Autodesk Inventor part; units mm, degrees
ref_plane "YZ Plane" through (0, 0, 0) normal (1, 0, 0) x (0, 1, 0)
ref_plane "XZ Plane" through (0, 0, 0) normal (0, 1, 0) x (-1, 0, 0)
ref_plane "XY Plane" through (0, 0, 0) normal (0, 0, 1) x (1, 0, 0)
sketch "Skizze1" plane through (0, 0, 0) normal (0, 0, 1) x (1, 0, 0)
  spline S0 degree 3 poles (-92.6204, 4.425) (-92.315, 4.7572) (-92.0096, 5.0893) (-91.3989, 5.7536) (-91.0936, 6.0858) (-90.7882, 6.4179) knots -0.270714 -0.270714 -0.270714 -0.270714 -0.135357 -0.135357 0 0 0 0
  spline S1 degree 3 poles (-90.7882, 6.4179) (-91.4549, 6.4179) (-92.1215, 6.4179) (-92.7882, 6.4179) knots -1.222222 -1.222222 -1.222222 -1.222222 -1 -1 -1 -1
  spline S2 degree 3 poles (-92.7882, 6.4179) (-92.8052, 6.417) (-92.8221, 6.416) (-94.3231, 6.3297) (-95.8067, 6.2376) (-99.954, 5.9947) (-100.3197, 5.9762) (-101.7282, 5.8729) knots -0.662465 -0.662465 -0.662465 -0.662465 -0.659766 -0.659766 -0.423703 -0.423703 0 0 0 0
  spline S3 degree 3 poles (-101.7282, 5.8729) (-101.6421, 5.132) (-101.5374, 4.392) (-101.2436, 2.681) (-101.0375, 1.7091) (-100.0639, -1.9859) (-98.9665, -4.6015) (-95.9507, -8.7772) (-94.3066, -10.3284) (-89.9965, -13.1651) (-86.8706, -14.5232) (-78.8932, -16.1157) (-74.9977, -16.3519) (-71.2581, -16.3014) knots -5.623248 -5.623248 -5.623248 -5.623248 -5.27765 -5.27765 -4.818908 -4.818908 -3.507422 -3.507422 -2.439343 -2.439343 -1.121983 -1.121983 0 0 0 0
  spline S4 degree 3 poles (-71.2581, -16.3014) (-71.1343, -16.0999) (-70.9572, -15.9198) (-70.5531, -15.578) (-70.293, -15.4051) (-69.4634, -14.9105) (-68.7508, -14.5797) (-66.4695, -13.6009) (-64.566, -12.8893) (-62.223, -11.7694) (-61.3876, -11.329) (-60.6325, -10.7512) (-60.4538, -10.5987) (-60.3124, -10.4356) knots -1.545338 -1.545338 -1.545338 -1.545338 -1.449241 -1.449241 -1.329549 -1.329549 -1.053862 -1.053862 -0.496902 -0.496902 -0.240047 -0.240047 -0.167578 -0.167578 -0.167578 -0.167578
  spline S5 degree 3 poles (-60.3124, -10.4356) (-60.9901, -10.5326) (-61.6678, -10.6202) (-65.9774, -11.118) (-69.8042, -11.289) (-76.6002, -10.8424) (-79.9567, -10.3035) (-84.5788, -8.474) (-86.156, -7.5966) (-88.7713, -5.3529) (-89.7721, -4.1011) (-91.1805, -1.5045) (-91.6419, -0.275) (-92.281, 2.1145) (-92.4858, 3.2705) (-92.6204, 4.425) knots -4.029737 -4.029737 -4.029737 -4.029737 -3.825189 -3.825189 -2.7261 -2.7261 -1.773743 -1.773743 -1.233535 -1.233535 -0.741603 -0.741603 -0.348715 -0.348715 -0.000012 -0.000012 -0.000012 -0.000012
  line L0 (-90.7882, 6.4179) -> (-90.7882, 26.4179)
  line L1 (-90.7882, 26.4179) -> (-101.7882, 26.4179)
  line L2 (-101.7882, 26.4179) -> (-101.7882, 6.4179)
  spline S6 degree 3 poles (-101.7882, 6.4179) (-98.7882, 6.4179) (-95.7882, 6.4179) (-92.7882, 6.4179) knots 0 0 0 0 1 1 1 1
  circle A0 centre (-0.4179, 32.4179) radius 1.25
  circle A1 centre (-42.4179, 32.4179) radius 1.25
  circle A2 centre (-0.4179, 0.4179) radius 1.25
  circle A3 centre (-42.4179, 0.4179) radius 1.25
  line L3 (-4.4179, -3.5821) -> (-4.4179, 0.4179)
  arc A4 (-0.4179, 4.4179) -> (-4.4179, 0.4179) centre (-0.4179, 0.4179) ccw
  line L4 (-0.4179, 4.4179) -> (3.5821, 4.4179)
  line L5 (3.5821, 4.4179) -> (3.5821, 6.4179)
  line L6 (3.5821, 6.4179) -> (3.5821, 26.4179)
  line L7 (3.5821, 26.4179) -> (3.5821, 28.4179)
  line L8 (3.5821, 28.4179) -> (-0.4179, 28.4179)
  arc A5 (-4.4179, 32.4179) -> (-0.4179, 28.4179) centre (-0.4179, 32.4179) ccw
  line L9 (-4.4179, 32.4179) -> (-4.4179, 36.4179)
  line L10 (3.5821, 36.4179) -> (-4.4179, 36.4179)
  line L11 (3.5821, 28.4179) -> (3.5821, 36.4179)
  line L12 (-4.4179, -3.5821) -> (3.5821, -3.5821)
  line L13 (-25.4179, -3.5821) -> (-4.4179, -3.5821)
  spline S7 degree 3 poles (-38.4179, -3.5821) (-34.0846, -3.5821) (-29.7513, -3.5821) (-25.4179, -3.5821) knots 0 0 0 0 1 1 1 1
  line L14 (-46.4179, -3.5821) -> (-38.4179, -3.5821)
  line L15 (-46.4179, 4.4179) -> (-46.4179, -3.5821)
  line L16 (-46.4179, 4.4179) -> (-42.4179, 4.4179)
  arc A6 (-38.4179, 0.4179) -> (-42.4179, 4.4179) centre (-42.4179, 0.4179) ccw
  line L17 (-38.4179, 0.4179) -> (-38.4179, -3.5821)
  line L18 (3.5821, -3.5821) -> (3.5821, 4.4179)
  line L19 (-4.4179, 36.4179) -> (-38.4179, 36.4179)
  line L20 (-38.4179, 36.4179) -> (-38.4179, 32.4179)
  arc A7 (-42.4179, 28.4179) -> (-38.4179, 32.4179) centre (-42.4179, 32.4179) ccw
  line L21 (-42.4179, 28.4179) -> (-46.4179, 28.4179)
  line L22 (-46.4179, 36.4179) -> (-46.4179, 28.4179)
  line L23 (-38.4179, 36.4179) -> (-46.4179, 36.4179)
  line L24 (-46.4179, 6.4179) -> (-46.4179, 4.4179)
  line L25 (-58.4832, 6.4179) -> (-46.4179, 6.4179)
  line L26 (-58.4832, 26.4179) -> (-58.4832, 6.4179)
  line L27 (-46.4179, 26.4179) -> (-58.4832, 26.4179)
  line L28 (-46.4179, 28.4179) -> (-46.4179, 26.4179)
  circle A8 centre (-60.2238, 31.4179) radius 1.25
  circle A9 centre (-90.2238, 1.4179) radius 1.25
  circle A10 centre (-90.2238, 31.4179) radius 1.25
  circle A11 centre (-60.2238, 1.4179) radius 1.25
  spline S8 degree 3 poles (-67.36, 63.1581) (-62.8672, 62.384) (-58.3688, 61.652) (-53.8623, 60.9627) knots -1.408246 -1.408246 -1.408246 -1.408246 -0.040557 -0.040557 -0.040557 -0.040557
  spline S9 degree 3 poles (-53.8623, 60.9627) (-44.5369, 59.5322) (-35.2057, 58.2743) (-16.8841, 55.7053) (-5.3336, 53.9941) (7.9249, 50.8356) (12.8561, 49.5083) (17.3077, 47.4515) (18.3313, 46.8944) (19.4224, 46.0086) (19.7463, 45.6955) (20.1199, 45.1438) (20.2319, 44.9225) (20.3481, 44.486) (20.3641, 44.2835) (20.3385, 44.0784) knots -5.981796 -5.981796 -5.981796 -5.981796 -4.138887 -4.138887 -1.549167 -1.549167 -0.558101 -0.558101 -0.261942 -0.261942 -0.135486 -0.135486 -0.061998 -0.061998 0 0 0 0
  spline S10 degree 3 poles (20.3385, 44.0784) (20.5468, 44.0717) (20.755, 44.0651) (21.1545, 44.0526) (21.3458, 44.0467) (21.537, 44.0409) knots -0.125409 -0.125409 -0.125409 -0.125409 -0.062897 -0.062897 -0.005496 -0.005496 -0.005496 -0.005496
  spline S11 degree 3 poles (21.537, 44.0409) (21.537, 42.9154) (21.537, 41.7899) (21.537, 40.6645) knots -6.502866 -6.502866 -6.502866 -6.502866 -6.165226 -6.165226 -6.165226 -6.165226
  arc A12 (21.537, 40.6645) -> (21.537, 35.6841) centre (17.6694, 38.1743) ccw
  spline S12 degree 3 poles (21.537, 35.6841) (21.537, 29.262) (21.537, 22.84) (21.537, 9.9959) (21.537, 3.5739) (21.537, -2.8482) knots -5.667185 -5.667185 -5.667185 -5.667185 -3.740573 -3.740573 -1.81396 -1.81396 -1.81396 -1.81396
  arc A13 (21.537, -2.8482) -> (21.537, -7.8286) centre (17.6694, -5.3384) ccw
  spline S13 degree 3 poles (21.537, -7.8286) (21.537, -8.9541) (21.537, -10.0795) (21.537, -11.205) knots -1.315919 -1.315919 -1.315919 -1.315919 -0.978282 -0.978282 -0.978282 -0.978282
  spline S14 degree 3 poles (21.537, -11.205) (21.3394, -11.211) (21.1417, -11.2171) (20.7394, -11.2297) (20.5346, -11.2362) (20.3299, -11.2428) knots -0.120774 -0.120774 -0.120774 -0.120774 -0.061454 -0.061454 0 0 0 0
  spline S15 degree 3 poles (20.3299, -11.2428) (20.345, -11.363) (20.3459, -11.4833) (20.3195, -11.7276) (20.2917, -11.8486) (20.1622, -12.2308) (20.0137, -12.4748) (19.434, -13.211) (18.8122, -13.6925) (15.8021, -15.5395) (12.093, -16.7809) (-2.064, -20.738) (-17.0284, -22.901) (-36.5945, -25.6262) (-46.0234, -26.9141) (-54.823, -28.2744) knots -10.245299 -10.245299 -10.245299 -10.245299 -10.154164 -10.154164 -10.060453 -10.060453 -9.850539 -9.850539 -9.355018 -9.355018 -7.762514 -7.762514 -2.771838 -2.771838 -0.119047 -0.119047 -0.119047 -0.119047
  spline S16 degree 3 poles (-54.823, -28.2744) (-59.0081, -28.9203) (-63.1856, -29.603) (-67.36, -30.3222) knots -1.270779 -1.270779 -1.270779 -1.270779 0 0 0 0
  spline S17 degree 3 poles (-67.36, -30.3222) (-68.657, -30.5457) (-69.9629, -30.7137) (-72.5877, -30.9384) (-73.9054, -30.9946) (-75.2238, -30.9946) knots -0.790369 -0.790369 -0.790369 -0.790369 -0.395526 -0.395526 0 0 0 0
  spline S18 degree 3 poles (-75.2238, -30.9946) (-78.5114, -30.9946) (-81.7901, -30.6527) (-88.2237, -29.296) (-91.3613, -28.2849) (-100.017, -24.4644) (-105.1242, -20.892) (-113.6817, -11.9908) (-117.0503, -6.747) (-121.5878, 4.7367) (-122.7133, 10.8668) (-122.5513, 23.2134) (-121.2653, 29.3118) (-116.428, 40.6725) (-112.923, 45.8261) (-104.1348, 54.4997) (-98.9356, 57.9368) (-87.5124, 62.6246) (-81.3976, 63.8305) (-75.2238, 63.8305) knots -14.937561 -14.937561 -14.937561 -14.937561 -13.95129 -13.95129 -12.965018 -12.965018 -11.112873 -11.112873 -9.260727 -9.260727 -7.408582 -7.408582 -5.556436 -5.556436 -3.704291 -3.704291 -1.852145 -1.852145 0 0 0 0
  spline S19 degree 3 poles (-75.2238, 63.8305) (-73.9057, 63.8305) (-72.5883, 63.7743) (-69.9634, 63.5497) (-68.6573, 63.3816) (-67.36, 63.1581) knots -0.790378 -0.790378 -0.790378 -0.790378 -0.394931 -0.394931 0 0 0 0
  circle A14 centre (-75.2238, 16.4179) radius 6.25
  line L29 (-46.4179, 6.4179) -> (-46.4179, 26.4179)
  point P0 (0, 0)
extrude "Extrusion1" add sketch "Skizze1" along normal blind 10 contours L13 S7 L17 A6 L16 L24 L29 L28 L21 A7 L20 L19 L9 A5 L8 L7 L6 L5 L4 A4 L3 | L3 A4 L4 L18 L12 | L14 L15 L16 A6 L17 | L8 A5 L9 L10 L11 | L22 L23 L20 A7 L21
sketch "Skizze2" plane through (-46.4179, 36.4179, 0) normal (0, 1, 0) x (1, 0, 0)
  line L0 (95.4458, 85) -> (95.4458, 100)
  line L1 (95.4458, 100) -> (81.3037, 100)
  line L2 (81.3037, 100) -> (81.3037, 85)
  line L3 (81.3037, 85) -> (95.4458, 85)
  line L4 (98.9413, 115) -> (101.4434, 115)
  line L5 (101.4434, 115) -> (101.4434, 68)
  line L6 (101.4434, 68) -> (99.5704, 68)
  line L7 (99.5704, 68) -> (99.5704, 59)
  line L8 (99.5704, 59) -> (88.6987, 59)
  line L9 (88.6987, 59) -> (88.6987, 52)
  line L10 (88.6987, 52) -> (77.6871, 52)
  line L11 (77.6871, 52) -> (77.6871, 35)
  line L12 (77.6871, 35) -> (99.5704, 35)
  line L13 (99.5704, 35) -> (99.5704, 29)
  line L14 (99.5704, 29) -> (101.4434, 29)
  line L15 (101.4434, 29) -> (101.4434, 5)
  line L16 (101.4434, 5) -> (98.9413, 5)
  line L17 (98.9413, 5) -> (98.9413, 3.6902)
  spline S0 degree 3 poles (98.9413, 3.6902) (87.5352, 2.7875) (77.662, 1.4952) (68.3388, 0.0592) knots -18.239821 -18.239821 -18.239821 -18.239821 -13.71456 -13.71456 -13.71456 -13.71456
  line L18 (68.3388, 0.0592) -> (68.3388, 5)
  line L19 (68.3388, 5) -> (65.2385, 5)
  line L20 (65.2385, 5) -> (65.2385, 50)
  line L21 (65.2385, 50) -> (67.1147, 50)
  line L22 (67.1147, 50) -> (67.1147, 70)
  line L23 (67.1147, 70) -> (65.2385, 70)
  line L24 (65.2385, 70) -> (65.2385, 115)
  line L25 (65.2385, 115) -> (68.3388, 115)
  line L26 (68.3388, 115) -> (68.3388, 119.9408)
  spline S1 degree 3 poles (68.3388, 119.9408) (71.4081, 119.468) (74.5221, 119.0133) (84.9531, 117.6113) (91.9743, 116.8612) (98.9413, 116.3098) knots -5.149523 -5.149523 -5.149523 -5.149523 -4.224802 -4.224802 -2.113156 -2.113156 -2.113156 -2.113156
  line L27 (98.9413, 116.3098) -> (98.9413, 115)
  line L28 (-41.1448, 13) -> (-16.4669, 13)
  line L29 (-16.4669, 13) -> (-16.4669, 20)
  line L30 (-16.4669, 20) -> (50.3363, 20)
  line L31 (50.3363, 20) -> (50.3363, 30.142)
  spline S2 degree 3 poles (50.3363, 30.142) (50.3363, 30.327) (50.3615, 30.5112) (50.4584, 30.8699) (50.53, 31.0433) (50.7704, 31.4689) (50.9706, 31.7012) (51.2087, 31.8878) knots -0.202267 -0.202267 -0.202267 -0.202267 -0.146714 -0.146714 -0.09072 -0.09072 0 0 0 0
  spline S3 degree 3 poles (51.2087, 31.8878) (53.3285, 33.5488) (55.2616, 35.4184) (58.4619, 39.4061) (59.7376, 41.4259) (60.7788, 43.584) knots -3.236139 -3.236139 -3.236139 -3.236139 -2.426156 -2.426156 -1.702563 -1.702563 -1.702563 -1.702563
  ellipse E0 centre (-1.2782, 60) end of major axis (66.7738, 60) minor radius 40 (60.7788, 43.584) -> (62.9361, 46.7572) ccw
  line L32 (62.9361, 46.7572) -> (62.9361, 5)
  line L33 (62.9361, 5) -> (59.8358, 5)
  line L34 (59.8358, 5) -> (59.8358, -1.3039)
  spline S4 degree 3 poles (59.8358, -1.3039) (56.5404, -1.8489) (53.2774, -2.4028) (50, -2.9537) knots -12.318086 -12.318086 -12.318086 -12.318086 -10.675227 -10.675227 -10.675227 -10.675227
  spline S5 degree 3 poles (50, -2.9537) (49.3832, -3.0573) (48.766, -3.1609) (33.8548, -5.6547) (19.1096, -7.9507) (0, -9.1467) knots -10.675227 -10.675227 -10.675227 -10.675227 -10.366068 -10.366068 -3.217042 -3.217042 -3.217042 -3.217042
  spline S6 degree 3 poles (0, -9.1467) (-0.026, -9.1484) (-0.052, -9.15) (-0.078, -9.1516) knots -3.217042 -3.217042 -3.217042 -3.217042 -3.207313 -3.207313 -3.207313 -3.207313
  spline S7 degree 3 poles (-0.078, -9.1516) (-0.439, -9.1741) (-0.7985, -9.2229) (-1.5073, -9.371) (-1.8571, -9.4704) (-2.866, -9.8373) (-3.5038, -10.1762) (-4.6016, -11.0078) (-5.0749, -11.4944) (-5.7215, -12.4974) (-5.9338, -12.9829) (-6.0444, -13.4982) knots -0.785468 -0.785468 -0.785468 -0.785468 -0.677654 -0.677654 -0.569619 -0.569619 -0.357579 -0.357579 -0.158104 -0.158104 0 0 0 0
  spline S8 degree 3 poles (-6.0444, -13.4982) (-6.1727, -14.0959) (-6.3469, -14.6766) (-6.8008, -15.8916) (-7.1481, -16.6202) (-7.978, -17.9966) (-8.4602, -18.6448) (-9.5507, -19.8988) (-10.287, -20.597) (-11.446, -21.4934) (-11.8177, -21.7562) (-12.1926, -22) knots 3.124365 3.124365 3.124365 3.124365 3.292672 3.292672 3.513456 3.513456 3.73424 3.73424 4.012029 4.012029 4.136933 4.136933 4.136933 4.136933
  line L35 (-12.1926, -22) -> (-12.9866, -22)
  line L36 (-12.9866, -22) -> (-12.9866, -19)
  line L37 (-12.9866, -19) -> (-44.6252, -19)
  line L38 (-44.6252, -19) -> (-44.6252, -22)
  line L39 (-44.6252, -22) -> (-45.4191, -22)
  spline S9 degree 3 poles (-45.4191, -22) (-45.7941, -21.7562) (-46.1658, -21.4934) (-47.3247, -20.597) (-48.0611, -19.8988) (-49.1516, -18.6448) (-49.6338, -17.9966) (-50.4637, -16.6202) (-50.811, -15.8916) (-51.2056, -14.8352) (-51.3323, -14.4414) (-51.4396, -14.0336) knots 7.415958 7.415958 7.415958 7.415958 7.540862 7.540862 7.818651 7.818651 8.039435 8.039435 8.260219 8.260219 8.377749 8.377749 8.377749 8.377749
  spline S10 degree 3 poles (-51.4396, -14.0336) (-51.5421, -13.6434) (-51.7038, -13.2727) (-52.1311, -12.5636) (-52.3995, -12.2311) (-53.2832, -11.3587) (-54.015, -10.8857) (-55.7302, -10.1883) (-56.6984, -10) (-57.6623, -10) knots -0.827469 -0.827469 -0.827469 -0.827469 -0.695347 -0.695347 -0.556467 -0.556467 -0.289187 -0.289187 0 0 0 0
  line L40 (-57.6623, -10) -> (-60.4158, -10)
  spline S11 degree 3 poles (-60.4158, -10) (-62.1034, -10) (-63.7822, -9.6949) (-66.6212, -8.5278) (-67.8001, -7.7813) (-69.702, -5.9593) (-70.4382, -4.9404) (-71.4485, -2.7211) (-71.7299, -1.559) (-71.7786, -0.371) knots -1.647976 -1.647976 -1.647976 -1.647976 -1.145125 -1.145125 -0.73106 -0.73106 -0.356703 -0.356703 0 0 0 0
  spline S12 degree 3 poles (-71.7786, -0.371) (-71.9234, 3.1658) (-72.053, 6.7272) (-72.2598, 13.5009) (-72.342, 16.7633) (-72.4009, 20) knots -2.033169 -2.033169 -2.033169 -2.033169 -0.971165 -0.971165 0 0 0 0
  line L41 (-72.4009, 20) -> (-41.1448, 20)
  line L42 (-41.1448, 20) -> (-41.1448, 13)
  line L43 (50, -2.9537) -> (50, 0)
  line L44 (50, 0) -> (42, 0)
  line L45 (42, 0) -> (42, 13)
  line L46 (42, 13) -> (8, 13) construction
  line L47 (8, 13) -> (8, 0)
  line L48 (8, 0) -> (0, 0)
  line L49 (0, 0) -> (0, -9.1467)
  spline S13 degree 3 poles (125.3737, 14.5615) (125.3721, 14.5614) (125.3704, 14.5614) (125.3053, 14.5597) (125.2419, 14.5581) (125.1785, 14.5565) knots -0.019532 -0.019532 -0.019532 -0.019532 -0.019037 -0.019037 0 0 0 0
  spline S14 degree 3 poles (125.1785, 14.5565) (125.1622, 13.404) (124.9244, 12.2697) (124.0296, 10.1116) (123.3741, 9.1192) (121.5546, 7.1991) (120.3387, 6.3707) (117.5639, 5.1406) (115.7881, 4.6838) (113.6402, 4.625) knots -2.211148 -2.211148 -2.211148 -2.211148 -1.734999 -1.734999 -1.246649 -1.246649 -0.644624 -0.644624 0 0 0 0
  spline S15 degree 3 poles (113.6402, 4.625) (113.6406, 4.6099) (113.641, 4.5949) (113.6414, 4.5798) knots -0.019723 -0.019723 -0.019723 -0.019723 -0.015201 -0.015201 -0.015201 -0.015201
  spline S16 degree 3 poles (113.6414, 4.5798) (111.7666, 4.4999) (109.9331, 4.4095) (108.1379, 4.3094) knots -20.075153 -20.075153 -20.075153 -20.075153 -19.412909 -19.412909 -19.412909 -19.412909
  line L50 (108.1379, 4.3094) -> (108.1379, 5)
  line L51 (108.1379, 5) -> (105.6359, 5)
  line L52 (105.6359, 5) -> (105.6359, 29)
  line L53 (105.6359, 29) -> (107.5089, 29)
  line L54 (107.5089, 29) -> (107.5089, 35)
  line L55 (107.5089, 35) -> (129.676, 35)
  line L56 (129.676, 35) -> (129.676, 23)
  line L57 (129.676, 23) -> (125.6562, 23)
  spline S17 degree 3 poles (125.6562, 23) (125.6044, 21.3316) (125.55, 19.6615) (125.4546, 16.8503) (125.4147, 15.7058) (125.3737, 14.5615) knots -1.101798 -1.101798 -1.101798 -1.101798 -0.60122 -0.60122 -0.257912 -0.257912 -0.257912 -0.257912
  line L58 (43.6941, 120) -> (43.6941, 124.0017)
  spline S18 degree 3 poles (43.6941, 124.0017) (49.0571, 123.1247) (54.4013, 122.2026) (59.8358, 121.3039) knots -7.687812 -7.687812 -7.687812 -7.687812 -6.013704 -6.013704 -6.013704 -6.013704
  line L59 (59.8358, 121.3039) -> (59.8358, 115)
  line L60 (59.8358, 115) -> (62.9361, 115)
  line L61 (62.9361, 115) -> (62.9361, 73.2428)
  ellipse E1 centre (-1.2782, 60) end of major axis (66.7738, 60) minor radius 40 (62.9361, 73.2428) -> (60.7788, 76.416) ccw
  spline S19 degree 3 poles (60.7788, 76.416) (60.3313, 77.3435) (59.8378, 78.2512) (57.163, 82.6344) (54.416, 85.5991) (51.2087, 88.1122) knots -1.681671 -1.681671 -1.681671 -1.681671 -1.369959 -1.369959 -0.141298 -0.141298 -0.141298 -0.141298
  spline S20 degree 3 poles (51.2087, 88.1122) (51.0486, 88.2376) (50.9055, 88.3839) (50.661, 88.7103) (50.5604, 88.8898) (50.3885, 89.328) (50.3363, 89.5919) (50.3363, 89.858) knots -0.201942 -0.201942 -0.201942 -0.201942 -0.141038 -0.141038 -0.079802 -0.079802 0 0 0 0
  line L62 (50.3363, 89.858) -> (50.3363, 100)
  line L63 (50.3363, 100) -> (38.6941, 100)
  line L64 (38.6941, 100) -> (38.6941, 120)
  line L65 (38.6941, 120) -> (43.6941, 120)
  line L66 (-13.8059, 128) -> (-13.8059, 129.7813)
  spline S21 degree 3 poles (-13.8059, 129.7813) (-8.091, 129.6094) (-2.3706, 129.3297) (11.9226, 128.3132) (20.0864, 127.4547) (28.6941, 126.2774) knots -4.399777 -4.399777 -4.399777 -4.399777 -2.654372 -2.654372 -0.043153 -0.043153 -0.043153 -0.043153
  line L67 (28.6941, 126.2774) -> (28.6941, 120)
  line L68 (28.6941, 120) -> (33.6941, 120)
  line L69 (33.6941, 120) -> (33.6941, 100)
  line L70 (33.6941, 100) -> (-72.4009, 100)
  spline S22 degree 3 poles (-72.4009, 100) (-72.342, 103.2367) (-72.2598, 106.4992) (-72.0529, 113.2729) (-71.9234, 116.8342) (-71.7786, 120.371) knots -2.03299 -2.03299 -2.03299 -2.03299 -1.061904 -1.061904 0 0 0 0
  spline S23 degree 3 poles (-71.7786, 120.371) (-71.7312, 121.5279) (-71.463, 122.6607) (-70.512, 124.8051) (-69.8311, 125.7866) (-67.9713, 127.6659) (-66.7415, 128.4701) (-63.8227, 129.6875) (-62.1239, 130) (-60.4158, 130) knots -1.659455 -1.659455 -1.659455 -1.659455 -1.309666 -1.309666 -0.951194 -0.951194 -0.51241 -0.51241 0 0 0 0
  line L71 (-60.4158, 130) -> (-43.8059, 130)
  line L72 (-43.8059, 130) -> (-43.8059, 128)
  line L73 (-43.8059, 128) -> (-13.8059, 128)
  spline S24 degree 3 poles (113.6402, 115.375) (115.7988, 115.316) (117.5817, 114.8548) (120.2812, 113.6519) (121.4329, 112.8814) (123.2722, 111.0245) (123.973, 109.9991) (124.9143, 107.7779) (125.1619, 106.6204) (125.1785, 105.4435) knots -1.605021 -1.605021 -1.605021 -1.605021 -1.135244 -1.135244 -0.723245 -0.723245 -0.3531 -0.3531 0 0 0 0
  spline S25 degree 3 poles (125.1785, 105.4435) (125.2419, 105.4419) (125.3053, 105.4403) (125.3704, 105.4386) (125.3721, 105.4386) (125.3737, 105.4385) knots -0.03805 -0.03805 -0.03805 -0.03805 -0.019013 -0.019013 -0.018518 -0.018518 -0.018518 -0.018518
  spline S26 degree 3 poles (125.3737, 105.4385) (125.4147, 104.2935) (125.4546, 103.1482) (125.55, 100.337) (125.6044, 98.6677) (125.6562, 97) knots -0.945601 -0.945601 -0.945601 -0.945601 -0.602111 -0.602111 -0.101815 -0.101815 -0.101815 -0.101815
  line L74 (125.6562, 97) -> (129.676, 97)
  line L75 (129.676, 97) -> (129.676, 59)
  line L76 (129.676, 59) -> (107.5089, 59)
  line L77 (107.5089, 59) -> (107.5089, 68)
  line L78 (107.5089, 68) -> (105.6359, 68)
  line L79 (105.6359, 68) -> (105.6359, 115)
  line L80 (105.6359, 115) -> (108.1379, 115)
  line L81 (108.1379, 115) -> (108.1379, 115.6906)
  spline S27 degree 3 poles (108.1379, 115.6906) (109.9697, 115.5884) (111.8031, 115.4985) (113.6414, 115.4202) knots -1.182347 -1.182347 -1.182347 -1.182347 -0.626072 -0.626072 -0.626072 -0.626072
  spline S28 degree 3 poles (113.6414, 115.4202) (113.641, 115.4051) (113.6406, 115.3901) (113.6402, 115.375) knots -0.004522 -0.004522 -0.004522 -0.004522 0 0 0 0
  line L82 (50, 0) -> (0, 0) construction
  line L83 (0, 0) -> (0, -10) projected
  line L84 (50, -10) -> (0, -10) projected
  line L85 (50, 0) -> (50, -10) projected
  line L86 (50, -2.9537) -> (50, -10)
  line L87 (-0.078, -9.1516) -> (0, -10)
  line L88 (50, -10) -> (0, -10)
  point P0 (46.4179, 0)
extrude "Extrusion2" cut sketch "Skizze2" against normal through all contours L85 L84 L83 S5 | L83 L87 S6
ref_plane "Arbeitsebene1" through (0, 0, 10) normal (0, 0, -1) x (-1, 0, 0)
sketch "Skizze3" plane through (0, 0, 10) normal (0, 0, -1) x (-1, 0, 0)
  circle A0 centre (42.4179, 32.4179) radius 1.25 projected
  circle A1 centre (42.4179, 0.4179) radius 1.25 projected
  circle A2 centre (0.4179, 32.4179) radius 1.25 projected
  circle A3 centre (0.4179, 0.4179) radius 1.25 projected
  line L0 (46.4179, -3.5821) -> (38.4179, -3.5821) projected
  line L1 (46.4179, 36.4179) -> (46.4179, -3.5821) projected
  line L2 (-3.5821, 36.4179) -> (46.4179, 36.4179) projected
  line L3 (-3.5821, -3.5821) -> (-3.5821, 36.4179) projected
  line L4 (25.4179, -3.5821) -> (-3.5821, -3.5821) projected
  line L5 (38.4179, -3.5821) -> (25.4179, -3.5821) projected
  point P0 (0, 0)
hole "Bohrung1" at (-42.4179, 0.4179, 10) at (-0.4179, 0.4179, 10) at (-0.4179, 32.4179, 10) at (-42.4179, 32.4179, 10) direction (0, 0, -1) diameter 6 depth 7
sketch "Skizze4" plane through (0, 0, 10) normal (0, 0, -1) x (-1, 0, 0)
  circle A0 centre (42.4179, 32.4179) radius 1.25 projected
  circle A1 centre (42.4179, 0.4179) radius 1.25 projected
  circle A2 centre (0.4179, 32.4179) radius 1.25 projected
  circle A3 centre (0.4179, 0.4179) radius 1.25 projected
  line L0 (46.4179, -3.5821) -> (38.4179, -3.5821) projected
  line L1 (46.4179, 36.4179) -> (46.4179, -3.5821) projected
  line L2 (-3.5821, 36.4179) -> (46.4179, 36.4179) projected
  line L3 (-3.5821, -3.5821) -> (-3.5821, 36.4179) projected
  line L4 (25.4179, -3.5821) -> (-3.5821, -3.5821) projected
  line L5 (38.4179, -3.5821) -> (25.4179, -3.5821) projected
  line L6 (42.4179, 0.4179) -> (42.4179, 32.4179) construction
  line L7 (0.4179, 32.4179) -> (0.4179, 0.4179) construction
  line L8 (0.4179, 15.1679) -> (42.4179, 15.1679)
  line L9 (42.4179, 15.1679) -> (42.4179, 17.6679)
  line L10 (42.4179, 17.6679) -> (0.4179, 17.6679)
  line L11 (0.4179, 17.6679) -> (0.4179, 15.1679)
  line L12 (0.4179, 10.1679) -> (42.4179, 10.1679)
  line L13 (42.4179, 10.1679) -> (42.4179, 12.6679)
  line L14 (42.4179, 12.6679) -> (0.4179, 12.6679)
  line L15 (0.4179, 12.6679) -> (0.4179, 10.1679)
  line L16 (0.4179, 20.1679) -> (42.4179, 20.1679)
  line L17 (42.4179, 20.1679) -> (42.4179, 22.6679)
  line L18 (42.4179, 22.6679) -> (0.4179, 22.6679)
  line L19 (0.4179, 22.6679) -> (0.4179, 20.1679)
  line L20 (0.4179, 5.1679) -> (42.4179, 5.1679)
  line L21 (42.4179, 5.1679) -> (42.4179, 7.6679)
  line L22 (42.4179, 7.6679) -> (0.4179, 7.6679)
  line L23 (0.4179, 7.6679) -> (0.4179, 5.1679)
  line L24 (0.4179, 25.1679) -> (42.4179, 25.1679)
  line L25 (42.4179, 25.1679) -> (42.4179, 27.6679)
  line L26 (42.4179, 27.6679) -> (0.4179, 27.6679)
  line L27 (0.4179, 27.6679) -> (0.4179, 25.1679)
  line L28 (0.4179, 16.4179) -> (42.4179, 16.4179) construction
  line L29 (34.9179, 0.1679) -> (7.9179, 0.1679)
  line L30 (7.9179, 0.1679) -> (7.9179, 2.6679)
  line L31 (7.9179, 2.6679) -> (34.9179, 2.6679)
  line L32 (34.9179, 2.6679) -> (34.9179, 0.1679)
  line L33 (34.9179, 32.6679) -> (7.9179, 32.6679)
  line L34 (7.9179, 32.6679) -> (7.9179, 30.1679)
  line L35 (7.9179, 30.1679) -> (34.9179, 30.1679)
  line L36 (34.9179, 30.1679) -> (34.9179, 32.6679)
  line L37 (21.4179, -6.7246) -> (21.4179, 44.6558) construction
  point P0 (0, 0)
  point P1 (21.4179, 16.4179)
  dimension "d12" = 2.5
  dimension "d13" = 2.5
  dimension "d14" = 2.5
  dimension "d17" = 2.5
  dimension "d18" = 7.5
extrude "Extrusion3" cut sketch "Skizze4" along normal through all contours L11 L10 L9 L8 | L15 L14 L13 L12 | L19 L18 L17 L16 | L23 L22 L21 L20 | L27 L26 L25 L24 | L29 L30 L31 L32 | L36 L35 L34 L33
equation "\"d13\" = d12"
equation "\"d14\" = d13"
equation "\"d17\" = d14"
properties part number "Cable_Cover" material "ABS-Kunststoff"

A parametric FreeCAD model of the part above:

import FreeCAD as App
import Part
import Sketcher
Q = App.Units.Quantity

doc = App.newDocument("Part")
params = doc.addObject("Spreadsheet::Sheet", "Params")
for row, (alias, value) in enumerate([
    ("sketch1_diameter", "2.5 mm"),
    ("sketch1_width", "29 mm"),
    ("sketch1_width2", "50 mm"),
    ("sketch1_height", "40 mm"),
    ("pad1_length", "10 mm"),
    ("sketch2_width", "50 mm"),
    ("sketch3_diameter", "6 mm"),
    ("hole_diameter", "6 mm"),
    ("hole_depth", "7 mm"),
    ("sketch4_height", "2.5 mm"),
    ("sketch4_width", "42 mm"),
], start=1):
    params.set(f"A{row}", alias)
    params.set(f"B{row}", "=" + value)
    params.setAlias(f"B{row}", alias)

body = doc.addObject("PartDesign::Body", "Body")

# Sketch on XY plane
sketch1 = body.newObject("Sketcher::SketchObject", "Sketch")
sketch1.AttachmentSupport = (doc.getObject("XY_Plane"), [""])
sketch1.MapMode = "FlatFace"
sketch1.addGeometry(Part.LineSegment(App.Vector(-25.4179, -3.5821, 0), App.Vector(3.5821, -3.5821, 0)), False)
sketch1.addGeometry(Part.LineSegment(App.Vector(3.5821, -3.5821, 0), App.Vector(3.5821, 36.4179, 0)), False)
sketch1.addGeometry(Part.LineSegment(App.Vector(3.5821, 36.4179, 0), App.Vector(-46.4179, 36.4179, 0)), False)
sketch1.addGeometry(Part.LineSegment(App.Vector(-46.4179, 36.4179, 0), App.Vector(-46.4179, -3.5821, 0)), False)
sketch1.addGeometry(Part.LineSegment(App.Vector(-46.4179, -3.5821, 0), App.Vector(-38.4179, -3.5821, 0)), False)
sketch1.addGeometry(Part.BSplineCurve([App.Vector(-38.4179, -3.5821, 0), App.Vector(-34.0846, -3.5821, 0), App.Vector(-29.7513, -3.5821, 0), App.Vector(-25.4179, -3.5821, 0)], [4, 4], [0, 1], False, 3, [1, 1, 1, 1], False), False)
sketch1.addGeometry(Part.Circle(App.Vector(-42.4179, 0.4179, 0), App.Vector(0, 0, 1), 1.25), False)
sketch1.addGeometry(Part.Circle(App.Vector(-42.4179, 32.4179, 0), App.Vector(0, 0, 1), 1.25), False)
sketch1.addGeometry(Part.Circle(App.Vector(-0.4179, 32.4179, 0), App.Vector(0, 0, 1), 1.25), False)
sketch1.addGeometry(Part.Circle(App.Vector(-0.4179, 0.4179, 0), App.Vector(0, 0, 1), 1.25), False)
sketch1.addConstraint(Sketcher.Constraint("Block", 5))
sketch1.addConstraint(Sketcher.Constraint("Coincident", 0, 2, 1, 1))
sketch1.addConstraint(Sketcher.Constraint("Coincident", 1, 2, 2, 1))
sketch1.addConstraint(Sketcher.Constraint("Coincident", 2, 2, 3, 1))
sketch1.addConstraint(Sketcher.Constraint("Coincident", 3, 2, 4, 1))
sketch1.addConstraint(Sketcher.Constraint("Coincident", 4, 2, 5, 1))
sketch1.addConstraint(Sketcher.Constraint("Coincident", 5, 2, 0, 1))
sketch1.addConstraint(Sketcher.Constraint("Horizontal", 0))
sketch1.addConstraint(Sketcher.Constraint("Vertical", 1))
sketch1.addConstraint(Sketcher.Constraint("Horizontal", 2))
sketch1.addConstraint(Sketcher.Constraint("Vertical", 3))
sketch1.addConstraint(Sketcher.Constraint("Horizontal", 4))
sketch1.addConstraint(Sketcher.Constraint("Equal", 6, 7))
sketch1.addConstraint(Sketcher.Constraint("Equal", 7, 8))
sketch1.addConstraint(Sketcher.Constraint("Equal", 8, 9))
sketch1.addConstraint(Sketcher.Constraint("Horizontal", 7, 3, 8, 3))
sketch1.addConstraint(Sketcher.Constraint("Horizontal", 6, 3, 9, 3))
sketch1.addConstraint(Sketcher.Constraint("Vertical", 6, 3, 7, 3))
sketch1.addConstraint(Sketcher.Constraint("Vertical", 8, 3, 9, 3))
sketch1.addConstraint(Sketcher.Constraint("Diameter", 6, Q("2.5 mm")))
sketch1.addConstraint(Sketcher.Constraint("DistanceX", 0, 1, 0, 2, Q("29 mm")))
sketch1.addConstraint(Sketcher.Constraint("DistanceX", 2, 2, 2, 1, Q("50 mm")))
sketch1.addConstraint(Sketcher.Constraint("DistanceY", 1, 1, 1, 2, Q("40 mm")))
sketch1.addConstraint(Sketcher.Constraint("DistanceY", 6, 3, 7, 3, Q("32 mm")))
sketch1.addConstraint(Sketcher.Constraint("DistanceX", 7, 3, 8, 3, Q("42 mm")))
sketch1.addConstraint(Sketcher.Constraint("DistanceX", 9, 3, 0, 2, Q("4 mm")))
sketch1.addConstraint(Sketcher.Constraint("DistanceY", 0, 2, 9, 3, Q("4 mm")))
sketch1.setExpression("Constraints[19]", "Params.sketch1_diameter")
sketch1.setExpression("Constraints[20]", "Params.sketch1_width")
sketch1.setExpression("Constraints[21]", "Params.sketch1_width2")
sketch1.setExpression("Constraints[22]", "Params.sketch1_height")
pad1 = body.newObject("PartDesign::Pad", "Pad")
pad1.Profile = sketch1
pad1.setExpression("Length", "Params.pad1_length")

# Sketch on XZ plane
sketch2 = body.newObject("Sketcher::SketchObject", "Sketch001")
sketch2.AttachmentSupport = (doc.getObject("XZ_Plane"), [""])
sketch2.MapMode = "FlatFace"
sketch2.AttachmentOffset = App.Placement(App.Vector(0, 0, -36.4179), App.Rotation())
sketch2.addGeometry(Part.LineSegment(App.Vector(3.5821, 10, 0), App.Vector(3.5821, 2.9537, 0)), False)
sketch2.addGeometry(Part.BSplineCurve([App.Vector(3.5821, 2.9537, 0), App.Vector(2.9653, 3.0573, 0), App.Vector(2.3481, 3.1609, 0), App.Vector(-12.5631, 5.6547, 0), App.Vector(-27.3083, 7.9507, 0), App.Vector(-46.4179, 9.1467, 0)], [4, 2, 4], [-10.675227, -10.366068, -3.217042], False, 3, [1, 1, 1, 1, 1, 1], False), False)
sketch2.addGeometry(Part.BSplineCurve([App.Vector(-46.4179, 9.1467, 0), App.Vector(-46.4439, 9.1484, 0), App.Vector(-46.4699, 9.15, 0), App.Vector(-46.4959, 9.1516, 0)], [4, 4], [-3.217042, -3.207313], False, 3, [1, 1, 1, 1], False), False)
sketch2.addGeometry(Part.LineSegment(App.Vector(-46.4959, 9.1516, 0), App.Vector(-46.4179, 10, 0)), False)
sketch2.addGeometry(Part.LineSegment(App.Vector(-46.4179, 10, 0), App.Vector(3.5821, 10, 0)), False)
sketch2.addConstraint(Sketcher.Constraint("Block", 1))
sketch2.addConstraint(Sketcher.Constraint("Block", 2))
sketch2.addConstraint(Sketcher.Constraint("Coincident", 0, 2, 1, 1))
sketch2.addConstraint(Sketcher.Constraint("Coincident", 2, 2, 3, 1))
sketch2.addConstraint(Sketcher.Constraint("Coincident", 3, 2, 4, 1))
sketch2.addConstraint(Sketcher.Constraint("Coincident", 4, 2, 0, 1))
sketch2.addConstraint(Sketcher.Constraint("Vertical", 0))
sketch2.addConstraint(Sketcher.Constraint("Horizontal", 4))
sketch2.addConstraint(Sketcher.Constraint("DistanceX", 4, 1, 4, 2, Q("50 mm")))
sketch2.addConstraint(Sketcher.Constraint("DistanceY", -1, 1, 3, 2, Q("10 mm")))
sketch2.setExpression("Constraints[8]", "Params.sketch2_width")
pocket1 = body.newObject("PartDesign::Pocket", "Pocket")
pocket1.Profile = sketch2
pocket1.Type = "ThroughAll"
pocket1.Reversed = True

# Sketch on XY plane
sketch3 = body.newObject("Sketcher::SketchObject", "Sketch002")
sketch3.AttachmentSupport = (doc.getObject("XY_Plane"), [""])
sketch3.MapMode = "FlatFace"
sketch3.AttachmentOffset = App.Placement(App.Vector(0, 0, 10), App.Rotation())
sketch3.addGeometry(Part.Circle(App.Vector(-42.4, 0.4, 0), App.Vector(0, 0, 1), 3), False)
sketch3.addGeometry(Part.Circle(App.Vector(-0.4, 0.4, 0), App.Vector(0, 0, 1), 3), False)
sketch3.addGeometry(Part.Circle(App.Vector(-0.4, 32.4, 0), App.Vector(0, 0, 1), 3), False)
sketch3.addGeometry(Part.Circle(App.Vector(-42.4, 32.4, 0), App.Vector(0, 0, 1), 3), False)
sketch3.addConstraint(Sketcher.Constraint("Equal", 0, 1))
sketch3.addConstraint(Sketcher.Constraint("Equal", 1, 2))
sketch3.addConstraint(Sketcher.Constraint("Equal", 2, 3))
sketch3.addConstraint(Sketcher.Constraint("Horizontal", 0, 3, 1, 3))
sketch3.addConstraint(Sketcher.Constraint("Horizontal", 2, 3, 3, 3))
sketch3.addConstraint(Sketcher.Constraint("Vertical", 1, 3, 2, 3))
sketch3.addConstraint(Sketcher.Constraint("Vertical", 0, 3, 3, 3))
sketch3.addConstraint(Sketcher.Constraint("Diameter", 0, Q("6 mm")))
sketch3.addConstraint(Sketcher.Constraint("DistanceX", 0, 3, 1, 3, Q("42 mm")))
sketch3.addConstraint(Sketcher.Constraint("DistanceY", 1, 3, 2, 3, Q("32 mm")))
sketch3.addConstraint(Sketcher.Constraint("DistanceX", 0, 3, -1, 1, Q("42.418 mm")))
sketch3.addConstraint(Sketcher.Constraint("DistanceY", -1, 1, 0, 3, Q("0.418 mm")))
sketch3.setExpression("Constraints[7]", "Params.sketch3_diameter")
doc.recompute()
hole = body.newObject("PartDesign::Hole", "Hole")
hole.Profile = sketch3
hole.ThreadType = "None"
hole.setExpression("Diameter", "Params.hole_diameter")
hole.DepthType = "Dimension"
hole.setExpression("Depth", "Params.hole_depth")
hole.DrillPoint = "Flat"

# Sketch on XY plane
sketch4 = body.newObject("Sketcher::SketchObject", "Sketch003")
sketch4.AttachmentSupport = (doc.getObject("XY_Plane"), [""])
sketch4.MapMode = "FlatFace"
sketch4.AttachmentOffset = App.Placement(App.Vector(0, 0, 10), App.Rotation())
sketch4.addGeometry(Part.LineSegment(App.Vector(-0.4, 17.7, 0), App.Vector(-0.4, 15.2, 0)), False)
sketch4.addGeometry(Part.LineSegment(App.Vector(-0.4, 15.2, 0), App.Vector(-42.4, 15.2, 0)), False)
sketch4.addGeometry(Part.LineSegment(App.Vector(-42.4, 15.2, 0), App.Vector(-42.4, 17.7, 0)), False)
sketch4.addGeometry(Part.LineSegment(App.Vector(-42.4, 17.7, 0), App.Vector(-0.4, 17.7, 0)), False)
sketch4.addGeometry(Part.LineSegment(App.Vector(-0.4, 12.7, 0), App.Vector(-0.4, 10.2, 0)), False)
sketch4.addGeometry(Part.LineSegment(App.Vector(-0.4, 10.2, 0), App.Vector(-42.4, 10.2, 0)), False)
sketch4.addGeometry(Part.LineSegment(App.Vector(-42.4, 10.2, 0), App.Vector(-42.4, 12.7, 0)), False)
sketch4.addGeometry(Part.LineSegment(App.Vector(-42.4, 12.7, 0), App.Vector(-0.4, 12.7, 0)), False)
sketch4.addGeometry(Part.LineSegment(App.Vector(-0.4, 22.7, 0), App.Vector(-0.4, 20.2, 0)), False)
sketch4.addGeometry(Part.LineSegment(App.Vector(-0.4, 20.2, 0), App.Vector(-42.4, 20.2, 0)), False)
sketch4.addGeometry(Part.LineSegment(App.Vector(-42.4, 20.2, 0), App.Vector(-42.4, 22.7, 0)), False)
sketch4.addGeometry(Part.LineSegment(App.Vector(-42.4, 22.7, 0), App.Vector(-0.4, 22.7, 0)), False)
sketch4.addGeometry(Part.LineSegment(App.Vector(-0.4, 7.7, 0), App.Vector(-0.4, 5.2, 0)), False)
sketch4.addGeometry(Part.LineSegment(App.Vector(-0.4, 5.2, 0), App.Vector(-42.4, 5.2, 0)), False)
sketch4.addGeometry(Part.LineSegment(App.Vector(-42.4, 5.2, 0), App.Vector(-42.4, 7.7, 0)), False)
sketch4.addGeometry(Part.LineSegment(App.Vector(-42.4, 7.7, 0), App.Vector(-0.4, 7.7, 0)), False)
sketch4.addGeometry(Part.LineSegment(App.Vector(-0.4, 27.7, 0), App.Vector(-0.4, 25.2, 0)), False)
sketch4.addGeometry(Part.LineSegment(App.Vector(-0.4, 25.2, 0), App.Vector(-42.4, 25.2, 0)), False)
sketch4.addGeometry(Part.LineSegment(App.Vector(-42.4, 25.2, 0), App.Vector(-42.4, 27.7, 0)), False)
sketch4.addGeometry(Part.LineSegment(App.Vector(-42.4, 27.7, 0), App.Vector(-0.4, 27.7, 0)), False)
sketch4.addGeometry(Part.LineSegment(App.Vector(-7.9, 0.2, 0), App.Vector(-34.9, 0.2, 0)), False)
sketch4.addGeometry(Part.LineSegment(App.Vector(-34.9, 0.2, 0), App.Vector(-34.9, 2.7, 0)), False)
sketch4.addGeometry(Part.LineSegment(App.Vector(-34.9, 2.7, 0), App.Vector(-7.9, 2.7, 0)), False)
sketch4.addGeometry(Part.LineSegment(App.Vector(-7.9, 2.7, 0), App.Vector(-7.9, 0.2, 0)), False)
sketch4.addGeometry(Part.LineSegment(App.Vector(-34.9, 30.2, 0), App.Vector(-34.9, 32.7, 0)), False)
sketch4.addGeometry(Part.LineSegment(App.Vector(-34.9, 32.7, 0), App.Vector(-7.9, 32.7, 0)), False)
sketch4.addGeometry(Part.LineSegment(App.Vector(-7.9, 32.7, 0), App.Vector(-7.9, 30.2, 0)), False)
sketch4.addGeometry(Part.LineSegment(App.Vector(-7.9, 30.2, 0), App.Vector(-34.9, 30.2, 0)), False)
sketch4.addConstraint(Sketcher.Constraint("Coincident", 0, 2, 1, 1))
sketch4.addConstraint(Sketcher.Constraint("Coincident", 1, 2, 2, 1))
sketch4.addConstraint(Sketcher.Constraint("Coincident", 2, 2, 3, 1))
sketch4.addConstraint(Sketcher.Constraint("Coincident", 3, 2, 0, 1))
sketch4.addConstraint(Sketcher.Constraint("Coincident", 4, 2, 5, 1))
sketch4.addConstraint(Sketcher.Constraint("Coincident", 5, 2, 6, 1))
sketch4.addConstraint(Sketcher.Constraint("Coincident", 6, 2, 7, 1))
sketch4.addConstraint(Sketcher.Constraint("Coincident", 7, 2, 4, 1))
sketch4.addConstraint(Sketcher.Constraint("Coincident", 8, 2, 9, 1))
sketch4.addConstraint(Sketcher.Constraint("Coincident", 9, 2, 10, 1))
sketch4.addConstraint(Sketcher.Constraint("Coincident", 10, 2, 11, 1))
sketch4.addConstraint(Sketcher.Constraint("Coincident", 11, 2, 8, 1))
sketch4.addConstraint(Sketcher.Constraint("Coincident", 12, 2, 13, 1))
sketch4.addConstraint(Sketcher.Constraint("Coincident", 13, 2, 14, 1))
sketch4.addConstraint(Sketcher.Constraint("Coincident", 14, 2, 15, 1))
sketch4.addConstraint(Sketcher.Constraint("Coincident", 15, 2, 12, 1))
sketch4.addConstraint(Sketcher.Constraint("Coincident", 16, 2, 17, 1))
sketch4.addConstraint(Sketcher.Constraint("Coincident", 17, 2, 18, 1))
sketch4.addConstraint(Sketcher.Constraint("Coincident", 18, 2, 19, 1))
sketch4.addConstraint(Sketcher.Constraint("Coincident", 19, 2, 16, 1))
sketch4.addConstraint(Sketcher.Constraint("Coincident", 20, 2, 21, 1))
sketch4.addConstraint(Sketcher.Constraint("Coincident", 21, 2, 22, 1))
sketch4.addConstraint(Sketcher.Constraint("Coincident", 22, 2, 23, 1))
sketch4.addConstraint(Sketcher.Constraint("Coincident", 23, 2, 20, 1))
sketch4.addConstraint(Sketcher.Constraint("Coincident", 24, 2, 25, 1))
sketch4.addConstraint(Sketcher.Constraint("Coincident", 25, 2, 26, 1))
sketch4.addConstraint(Sketcher.Constraint("Coincident", 26, 2, 27, 1))
sketch4.addConstraint(Sketcher.Constraint("Coincident", 27, 2, 24, 1))
sketch4.addConstraint(Sketcher.Constraint("Vertical", 0))
sketch4.addConstraint(Sketcher.Constraint("Horizontal", 1))
sketch4.addConstraint(Sketcher.Constraint("Vertical", 2))
sketch4.addConstraint(Sketcher.Constraint("Horizontal", 3))
sketch4.addConstraint(Sketcher.Constraint("Vertical", 4))
sketch4.addConstraint(Sketcher.Constraint("Horizontal", 5))
sketch4.addConstraint(Sketcher.Constraint("Vertical", 6))
sketch4.addConstraint(Sketcher.Constraint("Horizontal", 7))
sketch4.addConstraint(Sketcher.Constraint("Vertical", 8))
sketch4.addConstraint(Sketcher.Constraint("Horizontal", 9))
sketch4.addConstraint(Sketcher.Constraint("Vertical", 10))
sketch4.addConstraint(Sketcher.Constraint("Horizontal", 11))
sketch4.addConstraint(Sketcher.Constraint("Vertical", 12))
sketch4.addConstraint(Sketcher.Constraint("Horizontal", 13))
sketch4.addConstraint(Sketcher.Constraint("Vertical", 14))
sketch4.addConstraint(Sketcher.Constraint("Horizontal", 15))
sketch4.addConstraint(Sketcher.Constraint("Vertical", 16))
sketch4.addConstraint(Sketcher.Constraint("Horizontal", 17))
sketch4.addConstraint(Sketcher.Constraint("Vertical", 18))
sketch4.addConstraint(Sketcher.Constraint("Horizontal", 19))
sketch4.addConstraint(Sketcher.Constraint("Horizontal", 20))
sketch4.addConstraint(Sketcher.Constraint("Vertical", 21))
sketch4.addConstraint(Sketcher.Constraint("Horizontal", 22))
sketch4.addConstraint(Sketcher.Constraint("Vertical", 23))
sketch4.addConstraint(Sketcher.Constraint("Vertical", 24))
sketch4.addConstraint(Sketcher.Constraint("Horizontal", 25))
sketch4.addConstraint(Sketcher.Constraint("Vertical", 26))
sketch4.addConstraint(Sketcher.Constraint("Horizontal", 27))
sketch4.addConstraint(Sketcher.Constraint("Vertical", 3, 2, 4, 2))
sketch4.addConstraint(Sketcher.Constraint("Vertical", 2, 2, 5, 2))
sketch4.addConstraint(Sketcher.Constraint("Vertical", 7, 2, 8, 2))
sketch4.addConstraint(Sketcher.Constraint("Vertical", 6, 2, 9, 2))
sketch4.addConstraint(Sketcher.Constraint("Vertical", 11, 2, 12, 2))
sketch4.addConstraint(Sketcher.Constraint("Vertical", 10, 2, 13, 2))
sketch4.addConstraint(Sketcher.Constraint("Vertical", 15, 2, 16, 2))
sketch4.addConstraint(Sketcher.Constraint("Vertical", 14, 2, 17, 2))
sketch4.addConstraint(Sketcher.Constraint("Vertical", 21, 2, 24, 2))
sketch4.addConstraint(Sketcher.Constraint("Vertical", 23, 2, 25, 2))
sketch4.addConstraint(Sketcher.Constraint("Equal", 2, 4))
sketch4.addConstraint(Sketcher.Constraint("Equal", 6, 8))
sketch4.addConstraint(Sketcher.Constraint("Equal", 10, 12))
sketch4.addConstraint(Sketcher.Constraint("Equal", 14, 16))
sketch4.addConstraint(Sketcher.Constraint("Equal", 18, 21))
sketch4.addConstraint(Sketcher.Constraint("Equal", 23, 24))
sketch4.addConstraint(Sketcher.Constraint("DistanceY", 0, 2, 0, 1, Q("2.5 mm")))
sketch4.addConstraint(Sketcher.Constraint("DistanceY", 4, 2, 3, 2, Q("7.5 mm")))
sketch4.addConstraint(Sketcher.Constraint("DistanceY", 3, 2, 8, 2, Q("2.5 mm")))
sketch4.addConstraint(Sketcher.Constraint("DistanceY", 12, 2, 7, 2, Q("7.5 mm")))
sketch4.addConstraint(Sketcher.Constraint("DistanceY", 11, 2, 16, 2, Q("2.5 mm")))
sketch4.addConstraint(Sketcher.Constraint("DistanceX", 13, 2, 20, 2, Q("7.5 mm")))
sketch4.addConstraint(Sketcher.Constraint("DistanceY", 20, 2, 14, 2, Q("7.5 mm")))
sketch4.addConstraint(Sketcher.Constraint("DistanceX", 22, 2, 12, 2, Q("7.5 mm")))
sketch4.addConstraint(Sketcher.Constraint("DistanceY", 17, 2, 24, 2, Q("7.5 mm")))
sketch4.addConstraint(Sketcher.Constraint("DistanceX", 1, 2, 1, 1, Q("42 mm")))
sketch4.addConstraint(Sketcher.Constraint("DistanceX", 0, 2, -1, 1, Q("0.418 mm")))
sketch4.addConstraint(Sketcher.Constraint("DistanceY", -1, 1, 0, 2, Q("15.168 mm")))
sketch4.setExpression("Constraints[72]", "Params.sketch4_height")
sketch4.setExpression("Constraints[81]", "Params.sketch4_width")
pocket2 = body.newObject("PartDesign::Pocket", "Pocket001")
pocket2.Profile = sketch4
pocket2.Type = "ThroughAll"

doc.recompute()
